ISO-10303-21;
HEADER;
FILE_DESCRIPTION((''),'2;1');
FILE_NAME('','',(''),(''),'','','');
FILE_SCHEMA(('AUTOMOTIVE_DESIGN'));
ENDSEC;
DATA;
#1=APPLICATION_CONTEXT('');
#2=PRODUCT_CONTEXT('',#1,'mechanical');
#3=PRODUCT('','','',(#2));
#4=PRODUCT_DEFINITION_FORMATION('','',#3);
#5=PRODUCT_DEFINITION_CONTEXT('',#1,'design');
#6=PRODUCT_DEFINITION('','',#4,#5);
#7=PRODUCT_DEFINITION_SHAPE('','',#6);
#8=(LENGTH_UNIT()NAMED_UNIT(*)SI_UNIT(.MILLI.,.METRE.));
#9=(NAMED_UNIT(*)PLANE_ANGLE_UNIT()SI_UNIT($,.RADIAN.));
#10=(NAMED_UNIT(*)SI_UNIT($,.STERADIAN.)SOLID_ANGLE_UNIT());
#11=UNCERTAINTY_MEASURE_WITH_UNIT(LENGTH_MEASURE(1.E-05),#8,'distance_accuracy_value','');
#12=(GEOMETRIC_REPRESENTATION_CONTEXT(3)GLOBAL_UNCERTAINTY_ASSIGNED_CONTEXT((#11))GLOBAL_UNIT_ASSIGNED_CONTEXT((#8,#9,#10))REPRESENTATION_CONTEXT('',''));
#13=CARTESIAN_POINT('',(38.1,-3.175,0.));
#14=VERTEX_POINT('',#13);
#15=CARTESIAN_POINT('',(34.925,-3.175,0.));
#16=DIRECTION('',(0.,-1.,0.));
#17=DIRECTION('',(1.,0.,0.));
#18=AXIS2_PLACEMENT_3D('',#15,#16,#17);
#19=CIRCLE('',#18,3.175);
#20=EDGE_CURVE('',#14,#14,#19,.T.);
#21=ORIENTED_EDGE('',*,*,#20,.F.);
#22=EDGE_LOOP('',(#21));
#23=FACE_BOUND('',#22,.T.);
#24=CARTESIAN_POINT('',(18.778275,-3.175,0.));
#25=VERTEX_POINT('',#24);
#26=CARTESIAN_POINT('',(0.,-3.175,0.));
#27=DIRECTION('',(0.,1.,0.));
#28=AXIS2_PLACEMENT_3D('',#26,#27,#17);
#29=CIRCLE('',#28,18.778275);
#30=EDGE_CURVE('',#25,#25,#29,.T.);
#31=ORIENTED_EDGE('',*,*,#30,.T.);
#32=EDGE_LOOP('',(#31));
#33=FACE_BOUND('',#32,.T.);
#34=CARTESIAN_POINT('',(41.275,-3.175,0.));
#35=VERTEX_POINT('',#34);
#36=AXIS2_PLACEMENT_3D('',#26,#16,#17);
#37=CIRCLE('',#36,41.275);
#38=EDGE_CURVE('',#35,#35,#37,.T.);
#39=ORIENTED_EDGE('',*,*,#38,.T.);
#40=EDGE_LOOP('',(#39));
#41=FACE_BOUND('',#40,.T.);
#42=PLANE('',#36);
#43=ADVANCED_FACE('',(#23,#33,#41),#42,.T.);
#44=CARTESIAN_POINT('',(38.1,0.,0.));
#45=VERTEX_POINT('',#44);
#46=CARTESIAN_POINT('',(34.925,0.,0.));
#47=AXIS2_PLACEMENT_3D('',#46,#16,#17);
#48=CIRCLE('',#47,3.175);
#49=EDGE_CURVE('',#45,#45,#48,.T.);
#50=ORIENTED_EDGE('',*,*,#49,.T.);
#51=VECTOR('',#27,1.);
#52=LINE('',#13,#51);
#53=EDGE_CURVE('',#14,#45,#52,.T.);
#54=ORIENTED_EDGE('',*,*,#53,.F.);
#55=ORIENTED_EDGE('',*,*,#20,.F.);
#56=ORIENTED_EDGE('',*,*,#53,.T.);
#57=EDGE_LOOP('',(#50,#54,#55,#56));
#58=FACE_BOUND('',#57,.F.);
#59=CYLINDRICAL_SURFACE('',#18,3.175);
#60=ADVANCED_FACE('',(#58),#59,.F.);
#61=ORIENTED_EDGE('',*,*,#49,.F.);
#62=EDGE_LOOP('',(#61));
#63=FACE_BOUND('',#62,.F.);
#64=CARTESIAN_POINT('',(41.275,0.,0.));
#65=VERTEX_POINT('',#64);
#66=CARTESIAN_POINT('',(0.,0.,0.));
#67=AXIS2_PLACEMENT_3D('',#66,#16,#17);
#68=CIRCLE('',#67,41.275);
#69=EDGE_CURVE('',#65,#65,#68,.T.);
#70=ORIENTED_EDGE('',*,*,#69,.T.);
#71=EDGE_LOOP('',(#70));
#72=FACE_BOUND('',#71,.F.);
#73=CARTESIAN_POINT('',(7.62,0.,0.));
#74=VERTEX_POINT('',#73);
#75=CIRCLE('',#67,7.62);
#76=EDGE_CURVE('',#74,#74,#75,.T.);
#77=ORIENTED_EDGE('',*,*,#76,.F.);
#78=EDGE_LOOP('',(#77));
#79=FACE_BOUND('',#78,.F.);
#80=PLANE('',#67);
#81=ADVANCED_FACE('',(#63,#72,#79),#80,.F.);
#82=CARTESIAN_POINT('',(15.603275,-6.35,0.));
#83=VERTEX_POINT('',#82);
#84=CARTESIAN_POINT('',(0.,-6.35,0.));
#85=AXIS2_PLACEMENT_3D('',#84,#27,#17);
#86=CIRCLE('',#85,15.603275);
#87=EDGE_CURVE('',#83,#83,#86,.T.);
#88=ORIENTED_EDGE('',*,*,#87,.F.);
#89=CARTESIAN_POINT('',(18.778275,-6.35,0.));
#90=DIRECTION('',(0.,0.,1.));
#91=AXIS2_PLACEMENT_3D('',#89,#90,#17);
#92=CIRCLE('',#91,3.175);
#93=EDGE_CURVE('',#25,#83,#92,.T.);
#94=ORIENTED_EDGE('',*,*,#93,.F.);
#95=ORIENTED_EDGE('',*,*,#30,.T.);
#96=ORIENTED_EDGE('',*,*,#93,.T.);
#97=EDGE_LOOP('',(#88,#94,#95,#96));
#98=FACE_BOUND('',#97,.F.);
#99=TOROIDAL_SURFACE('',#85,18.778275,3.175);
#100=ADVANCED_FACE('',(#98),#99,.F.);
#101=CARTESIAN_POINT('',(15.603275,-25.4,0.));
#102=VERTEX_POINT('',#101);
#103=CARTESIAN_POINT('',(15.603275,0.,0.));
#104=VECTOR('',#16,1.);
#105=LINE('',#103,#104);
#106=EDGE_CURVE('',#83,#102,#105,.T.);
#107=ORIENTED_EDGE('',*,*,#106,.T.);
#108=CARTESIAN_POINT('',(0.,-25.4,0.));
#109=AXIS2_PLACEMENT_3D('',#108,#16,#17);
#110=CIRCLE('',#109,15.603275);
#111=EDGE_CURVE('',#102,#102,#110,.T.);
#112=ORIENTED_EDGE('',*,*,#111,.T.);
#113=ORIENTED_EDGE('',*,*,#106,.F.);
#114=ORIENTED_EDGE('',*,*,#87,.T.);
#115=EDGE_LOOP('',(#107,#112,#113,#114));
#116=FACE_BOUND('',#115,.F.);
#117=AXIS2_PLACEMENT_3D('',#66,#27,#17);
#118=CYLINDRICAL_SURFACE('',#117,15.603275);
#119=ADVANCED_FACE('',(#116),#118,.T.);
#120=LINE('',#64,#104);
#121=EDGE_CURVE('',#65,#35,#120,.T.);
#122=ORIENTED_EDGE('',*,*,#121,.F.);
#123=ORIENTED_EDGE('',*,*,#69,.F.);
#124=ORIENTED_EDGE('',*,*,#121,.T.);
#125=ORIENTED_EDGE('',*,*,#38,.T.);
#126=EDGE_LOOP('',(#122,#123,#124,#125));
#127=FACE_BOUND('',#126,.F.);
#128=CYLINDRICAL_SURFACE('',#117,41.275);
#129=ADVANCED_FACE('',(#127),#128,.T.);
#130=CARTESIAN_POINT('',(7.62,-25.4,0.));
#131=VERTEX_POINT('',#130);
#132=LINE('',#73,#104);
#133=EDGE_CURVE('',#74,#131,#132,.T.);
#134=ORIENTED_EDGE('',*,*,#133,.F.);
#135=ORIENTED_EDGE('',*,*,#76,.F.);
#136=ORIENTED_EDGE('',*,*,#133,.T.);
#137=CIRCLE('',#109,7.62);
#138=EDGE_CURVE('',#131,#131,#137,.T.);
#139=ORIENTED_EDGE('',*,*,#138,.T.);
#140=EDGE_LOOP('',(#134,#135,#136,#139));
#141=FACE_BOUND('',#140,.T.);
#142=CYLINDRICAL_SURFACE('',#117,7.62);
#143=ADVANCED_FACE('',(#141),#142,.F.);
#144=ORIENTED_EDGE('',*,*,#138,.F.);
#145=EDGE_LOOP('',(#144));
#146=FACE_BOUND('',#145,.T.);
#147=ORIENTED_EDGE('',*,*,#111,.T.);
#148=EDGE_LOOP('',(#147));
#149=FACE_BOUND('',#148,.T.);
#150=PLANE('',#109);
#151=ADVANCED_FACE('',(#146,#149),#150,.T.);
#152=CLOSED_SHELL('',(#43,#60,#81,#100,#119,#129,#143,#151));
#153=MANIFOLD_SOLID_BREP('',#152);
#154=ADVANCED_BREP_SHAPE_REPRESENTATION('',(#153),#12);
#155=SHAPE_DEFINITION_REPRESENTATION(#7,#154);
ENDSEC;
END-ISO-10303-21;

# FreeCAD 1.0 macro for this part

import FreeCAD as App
import Part
import Sketcher
Q = App.Units.Quantity


def edges_at(feature, points):
    """Names of the edges that pass closest to the given points."""
    edges = feature.Shape.Edges
    near = lambda p: min(range(len(edges)), key=lambda i: edges[i].distToShape(Part.Vertex(*p))[0])
    return sorted({f"Edge{near(p) + 1}" for p in points})

doc = App.newDocument("Part")
body = doc.addObject("PartDesign::Body", "Body")

sketch1 = doc.addObject("Sketcher::SketchObject", "Sketch")
body.addObject(sketch1)
sketch1.AttachmentSupport = (doc.XZ_Plane, [""])
sketch1.MapMode = "FlatFace"
sketch1.addGeometry(Part.Circle(App.Vector(0, 0, 0), App.Vector(0, 0, 1), 41), False)
sketch1.addConstraint([
    Sketcher.Constraint("Coincident", 0, 3, -1, 1),
    Sketcher.Constraint("Diameter", 0, Q("3.25 in")),
])
pad1 = doc.addObject("PartDesign::Pad", "Pad")
body.addObject(pad1)
pad1.Profile = sketch1
pad1.Length = Q("0.125 in")

sketch2 = doc.addObject("Sketcher::SketchObject", "Sketch001")
body.addObject(sketch2)
sketch2.AttachmentSupport = (doc.XZ_Plane, [""])
sketch2.MapMode = "FlatFace"
sketch2.addGeometry(Part.Circle(App.Vector(0, 0, 0), App.Vector(0, 0, 1), 16), False)
sketch2.addConstraint([
    Sketcher.Constraint("Coincident", 0, 3, -1, 1),
    Sketcher.Constraint("Diameter", 0, Q("31.20655 mm")),
])
pad2 = doc.addObject("PartDesign::Pad", "Pad001")
body.addObject(pad2)
pad2.Profile = sketch2
pad2.Length = Q("1 in")

sketch3 = doc.addObject("Sketcher::SketchObject", "Sketch002")
body.addObject(sketch3)
sketch3.AttachmentSupport = (doc.XZ_Plane, [""])
sketch3.MapMode = "FlatFace"
sketch3.addGeometry(Part.Circle(App.Vector(0, 0, 0), App.Vector(0, 0, 1), 8), False)
sketch3.addConstraint([
    Sketcher.Constraint("Coincident", 0, 3, -1, 1),
    Sketcher.Constraint("Diameter", 0, Q("0.6 in")),
])
pocket1 = doc.addObject("PartDesign::Pocket", "Pocket")
body.addObject(pocket1)
pocket1.Profile = sketch3
pocket1.Length = Q("1 in")
pocket1.Reversed = True
doc.recompute()

fillet = doc.addObject("PartDesign::Fillet", "Fillet")
body.addObject(fillet)
fillet.Base = (pocket1, edges_at(pocket1, [(-15.603, -3.175, 0)]))
fillet.Radius = Q("0.125 in")

sketch4 = doc.addObject("Sketcher::SketchObject", "Sketch003")
body.addObject(sketch4)
sketch4.AttachmentSupport = (doc.XZ_Plane, [""])
sketch4.MapMode = "FlatFace"
sketch4.AttachmentOffset = App.Placement(App.Vector(0, 0, 0.125 * 25.4), App.Rotation())
sketch4.addGeometry(Part.Circle(App.Vector(34.9, 0, 0), App.Vector(0, 0, 1), 3.2), False)
sketch4.addConstraint([
    Sketcher.Constraint("PointOnObject", 0, 3, -1),
    Sketcher.Constraint("Diameter", 0, Q("0.25 in")),
    Sketcher.Constraint("DistanceX", -1, 1, 0, 3, Q("1.375 in")),
])
pocket2 = doc.addObject("PartDesign::Pocket", "Pocket001")
body.addObject(pocket2)
pocket2.Profile = sketch4
pocket2.Length = Q("1 in")

doc.recompute()
